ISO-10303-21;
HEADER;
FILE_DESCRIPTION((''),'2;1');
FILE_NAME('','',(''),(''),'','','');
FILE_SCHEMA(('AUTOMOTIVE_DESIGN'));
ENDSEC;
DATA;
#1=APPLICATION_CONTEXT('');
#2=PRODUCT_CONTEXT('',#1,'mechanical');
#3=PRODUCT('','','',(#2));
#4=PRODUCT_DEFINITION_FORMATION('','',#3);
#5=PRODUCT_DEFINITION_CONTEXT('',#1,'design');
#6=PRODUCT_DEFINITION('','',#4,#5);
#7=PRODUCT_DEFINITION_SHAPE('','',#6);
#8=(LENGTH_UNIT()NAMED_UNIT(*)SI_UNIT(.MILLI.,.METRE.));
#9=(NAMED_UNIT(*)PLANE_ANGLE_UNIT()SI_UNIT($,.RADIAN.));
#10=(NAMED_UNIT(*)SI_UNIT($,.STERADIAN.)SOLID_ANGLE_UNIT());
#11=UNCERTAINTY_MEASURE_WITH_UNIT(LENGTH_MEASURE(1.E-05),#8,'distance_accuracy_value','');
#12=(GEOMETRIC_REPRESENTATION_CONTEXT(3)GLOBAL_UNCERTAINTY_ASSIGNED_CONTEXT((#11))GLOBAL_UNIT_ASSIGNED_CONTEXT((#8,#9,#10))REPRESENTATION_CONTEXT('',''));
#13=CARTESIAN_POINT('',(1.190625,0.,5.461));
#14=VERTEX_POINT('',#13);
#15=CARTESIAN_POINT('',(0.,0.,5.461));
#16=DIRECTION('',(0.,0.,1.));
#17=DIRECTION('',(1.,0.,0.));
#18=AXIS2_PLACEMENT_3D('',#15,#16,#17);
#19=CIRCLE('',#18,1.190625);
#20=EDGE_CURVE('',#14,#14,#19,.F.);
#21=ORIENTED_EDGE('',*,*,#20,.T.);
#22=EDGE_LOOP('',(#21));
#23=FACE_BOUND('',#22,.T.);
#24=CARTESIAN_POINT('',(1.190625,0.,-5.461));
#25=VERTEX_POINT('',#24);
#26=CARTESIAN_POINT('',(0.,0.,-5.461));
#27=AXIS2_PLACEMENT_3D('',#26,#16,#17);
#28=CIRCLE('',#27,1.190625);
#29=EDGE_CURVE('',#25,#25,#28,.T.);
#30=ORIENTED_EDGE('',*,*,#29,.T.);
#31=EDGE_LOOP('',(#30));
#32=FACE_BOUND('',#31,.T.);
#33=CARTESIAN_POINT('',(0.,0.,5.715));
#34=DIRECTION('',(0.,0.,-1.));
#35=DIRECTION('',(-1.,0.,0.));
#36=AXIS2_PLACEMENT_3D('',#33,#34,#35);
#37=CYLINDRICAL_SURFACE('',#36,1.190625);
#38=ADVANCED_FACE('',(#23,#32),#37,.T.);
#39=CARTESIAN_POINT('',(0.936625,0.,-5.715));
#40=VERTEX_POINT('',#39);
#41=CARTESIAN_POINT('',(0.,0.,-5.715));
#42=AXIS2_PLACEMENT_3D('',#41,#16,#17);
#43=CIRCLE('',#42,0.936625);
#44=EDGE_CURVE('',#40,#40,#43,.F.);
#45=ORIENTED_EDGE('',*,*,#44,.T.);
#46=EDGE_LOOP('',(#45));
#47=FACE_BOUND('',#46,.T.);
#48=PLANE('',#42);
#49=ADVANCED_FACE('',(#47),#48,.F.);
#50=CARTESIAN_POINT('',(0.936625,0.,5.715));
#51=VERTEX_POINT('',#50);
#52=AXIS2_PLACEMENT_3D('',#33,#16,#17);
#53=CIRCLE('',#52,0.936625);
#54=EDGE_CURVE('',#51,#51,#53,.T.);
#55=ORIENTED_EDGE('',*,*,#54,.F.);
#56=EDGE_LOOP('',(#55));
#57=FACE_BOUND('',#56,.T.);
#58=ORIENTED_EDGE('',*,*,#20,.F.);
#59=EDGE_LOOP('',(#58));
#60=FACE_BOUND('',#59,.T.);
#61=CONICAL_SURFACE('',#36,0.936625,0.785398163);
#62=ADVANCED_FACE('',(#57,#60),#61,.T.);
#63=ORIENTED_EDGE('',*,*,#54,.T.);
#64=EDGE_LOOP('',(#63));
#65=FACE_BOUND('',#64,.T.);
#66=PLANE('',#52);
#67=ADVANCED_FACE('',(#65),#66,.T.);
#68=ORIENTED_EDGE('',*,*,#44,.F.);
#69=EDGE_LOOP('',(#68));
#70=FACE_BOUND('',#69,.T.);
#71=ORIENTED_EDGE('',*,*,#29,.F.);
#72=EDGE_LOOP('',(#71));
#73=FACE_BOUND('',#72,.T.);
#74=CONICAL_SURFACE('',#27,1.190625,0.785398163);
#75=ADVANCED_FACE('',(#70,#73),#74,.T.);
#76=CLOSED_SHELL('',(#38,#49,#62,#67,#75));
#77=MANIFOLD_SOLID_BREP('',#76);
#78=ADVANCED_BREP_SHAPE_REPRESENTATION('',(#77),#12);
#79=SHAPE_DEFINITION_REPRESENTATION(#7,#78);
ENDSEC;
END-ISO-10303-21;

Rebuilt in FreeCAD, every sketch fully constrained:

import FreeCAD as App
import Part
import Sketcher
Q = App.Units.Quantity


def edges_at(feature, points):
    """Names of the edges that pass closest to the given points."""
    edges = feature.Shape.Edges
    near = lambda p: min(range(len(edges)), key=lambda i: edges[i].distToShape(Part.Vertex(*p))[0])
    return sorted({f"Edge{near(p) + 1}" for p in points})

doc = App.newDocument("Part")
params = doc.addObject("Spreadsheet::Sheet", "Params")
for row, (alias, value) in enumerate([
    ("sketch1_diameter", "0.09375 in"),
    ("pad1_length", "0.45 in"),
    ("chamfer_size", "0.01 in"),
], start=1):
    params.set(f"A{row}", alias)
    params.set(f"B{row}", "=" + value)
    params.setAlias(f"B{row}", alias)

body = doc.addObject("PartDesign::Body", "Body")

sketch1 = body.newObject("Sketcher::SketchObject", "Sketch")
sketch1.AttachmentSupport = (doc.getObject("XY_Plane"), [""])
sketch1.MapMode = "FlatFace"
sketch1.addGeometry(Part.Circle(App.Vector(0, 0, 0), App.Vector(0, 0, 1), 1.2), False)
sketch1.addConstraint([
    Sketcher.Constraint("Coincident", 0, 3, -1, 1),
    Sketcher.Constraint("Diameter", 0, Q("0.09375 in")),
])
sketch1.setExpression("Constraints[1]", "Params.sketch1_diameter")
pad1 = body.newObject("PartDesign::Pad", "Pad")
pad1.Profile = sketch1
pad1.setExpression("Length", "Params.pad1_length")
pad1.Midplane = True
doc.recompute()

chamfer = body.newObject("PartDesign::Chamfer", "Chamfer")
chamfer.Base = (pad1, edges_at(pad1, [(-1.191, 0, -5.715), (-1.191, 0, 5.715)]))
chamfer.setExpression("Size", "Params.chamfer_size")

doc.recompute()
